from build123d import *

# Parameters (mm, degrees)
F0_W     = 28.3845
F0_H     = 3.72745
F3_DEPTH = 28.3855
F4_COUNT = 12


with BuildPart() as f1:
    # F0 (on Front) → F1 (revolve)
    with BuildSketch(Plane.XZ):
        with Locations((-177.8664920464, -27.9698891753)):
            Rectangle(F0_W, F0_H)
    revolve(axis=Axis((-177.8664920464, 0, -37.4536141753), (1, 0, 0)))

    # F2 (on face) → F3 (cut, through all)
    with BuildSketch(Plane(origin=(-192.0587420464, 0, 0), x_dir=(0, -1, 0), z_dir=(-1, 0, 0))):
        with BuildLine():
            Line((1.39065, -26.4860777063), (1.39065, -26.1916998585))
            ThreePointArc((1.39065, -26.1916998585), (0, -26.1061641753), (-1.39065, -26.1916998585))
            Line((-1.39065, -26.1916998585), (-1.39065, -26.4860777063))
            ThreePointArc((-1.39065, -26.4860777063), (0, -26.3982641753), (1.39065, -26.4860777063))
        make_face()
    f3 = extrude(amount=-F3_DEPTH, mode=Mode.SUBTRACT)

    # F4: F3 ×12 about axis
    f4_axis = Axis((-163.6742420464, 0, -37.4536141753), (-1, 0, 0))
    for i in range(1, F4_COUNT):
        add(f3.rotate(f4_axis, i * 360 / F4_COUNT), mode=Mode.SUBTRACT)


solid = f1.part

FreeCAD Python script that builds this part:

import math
import FreeCAD as App
import Part
import Sketcher

V = App.Vector
Q = App.Units.Quantity


def add_polygon(sketch, points):
    """Adds a closed chain of lines whose ends are joined by coincident constraints."""
    first, n = sketch.GeometryCount, len(points)
    for a, b in zip(points, points[1:] + points[:1]):
        sketch.addGeometry(Part.LineSegment(App.Vector(*a, 0), App.Vector(*b, 0)), False)
    for i in range(n):
        sketch.addConstraint(Sketcher.Constraint("Coincident", first + i, 2, first + (i + 1) % n, 1))

doc = App.newDocument("Part")
body = doc.addObject("PartDesign::Body", "Body")

# Sketch on XZ plane
sketch1 = doc.addObject("Sketcher::SketchObject", "Sketch")
body.addObject(sketch1)
sketch1.AttachmentSupport = (doc.XZ_Plane, [""])
sketch1.MapMode = "FlatFace"
add_polygon(sketch1, [(-192.058742, -26.106164), (-192.058742, -29.833614), (-163.674242, -29.833614), (-163.674242, -26.106164)])  # lines 0-3
sketch1.addGeometry(Part.LineSegment(V(-192.058742, -37.453614, 0), V(-163.674242, -37.453614, 0)), True)  # axis
sketch1.addConstraint(Sketcher.Constraint("Vertical", 0))
sketch1.addConstraint(Sketcher.Constraint("Horizontal", 1))
sketch1.addConstraint(Sketcher.Constraint("Vertical", 2))
sketch1.addConstraint(Sketcher.Constraint("Horizontal", 3))
sketch1.addConstraint(Sketcher.Constraint("Horizontal", 4))
sketch1.addConstraint(Sketcher.Constraint("Vertical", 3, 2, 4, 1))
sketch1.addConstraint(Sketcher.Constraint("Vertical", 2, 2, 4, 2))
sketch1.addConstraint(Sketcher.Constraint("DistanceY", 4, 1, 0, 2, Q("7.62 mm")))
sketch1.addConstraint(Sketcher.Constraint("DistanceX", 1, 1, 1, 2, Q("28.3845 mm")))
sketch1.addConstraint(Sketcher.Constraint("DistanceY", 0, 2, 0, 1, Q("3.72745 mm")))
sketch1.addConstraint(Sketcher.Constraint("DistanceX", 0, 2, -1, 1, Q("192.058742 mm")))
sketch1.addConstraint(Sketcher.Constraint("DistanceY", 0, 2, -1, 1, Q("29.833614 mm")))
revolution = doc.addObject("PartDesign::Revolution", "Revolution")
body.addObject(revolution)
revolution.Profile = sketch1
revolution.ReferenceAxis = (sketch1, ["Axis0"])
revolution.Angle = 360

# Sketch on YZ plane
sketch2 = doc.addObject("Sketcher::SketchObject", "Sketch001")
body.addObject(sketch2)
sketch2.AttachmentSupport = (doc.YZ_Plane, [""])
sketch2.MapMode = "FlatFace"
sketch2.AttachmentOffset = App.Placement(V(0, 0, -192.058742), App.Rotation())
sketch2.addGeometry(Part.LineSegment(V(-1.39065, -26.486078, 0), V(-1.39065, -26.1917, 0)), False)
sketch2.addGeometry(Part.ArcOfCircle(Part.Circle(V(0, -37.453614, 0), V(0, 0, 1), 11.34745), math.radians(82.960605), math.radians(97.039395)), False)
sketch2.addGeometry(Part.LineSegment(V(1.39065, -26.1917, 0), V(1.39065, -26.486078, 0)), False)
sketch2.addGeometry(Part.ArcOfCircle(Part.Circle(V(0, -37.453614, 0), V(0, 0, 1), 11.05535), math.radians(82.773633), math.radians(97.226367)), False)
sketch2.addConstraint(Sketcher.Constraint("Coincident", 0, 2, 1, 2))
sketch2.addConstraint(Sketcher.Constraint("Coincident", 1, 1, 2, 1))
sketch2.addConstraint(Sketcher.Constraint("Coincident", 2, 2, 3, 1))
sketch2.addConstraint(Sketcher.Constraint("Coincident", 3, 2, 0, 1))
sketch2.addConstraint(Sketcher.Constraint("Vertical", 0))
sketch2.addConstraint(Sketcher.Constraint("Vertical", 2))
sketch2.addConstraint(Sketcher.Constraint("Coincident", 3, 3, 1, 3))
sketch2.addConstraint(Sketcher.Constraint("Symmetric", 0, 2, 1, 1, -2))
sketch2.addConstraint(Sketcher.Constraint("Radius", 1, Q("11.34745 mm")))
sketch2.addConstraint(Sketcher.Constraint("Radius", 3, Q("11.05535 mm")))
sketch2.addConstraint(Sketcher.Constraint("DistanceY", 0, 2, -1, 1, Q("26.1917 mm")))
sketch2.addConstraint(Sketcher.Constraint("DistanceX", 0, 2, 1, 1, Q("2.7813 mm")))
pocket1 = doc.addObject("PartDesign::Pocket", "Pocket")
body.addObject(pocket1)
pocket1.Profile = sketch2
pocket1.Type = "ThroughAll"
pocket1.Reversed = True
doc.recompute()

datumline = doc.addObject("PartDesign::Line", "DatumLine")
body.addObject(datumline)
datumline.Placement = App.Placement(V(0, 0, -37.453614), App.Rotation(V(0, 0, 1), V(-1, 0, 0)))
polarpattern = doc.addObject("PartDesign::PolarPattern", "PolarPattern")
body.addObject(polarpattern)
polarpattern.Originals = [pocket1]
polarpattern.Axis = (datumline, [""])
polarpattern.Angle = 360
polarpattern.Occurrences = 12
body.Tip = polarpattern

doc.recompute()
